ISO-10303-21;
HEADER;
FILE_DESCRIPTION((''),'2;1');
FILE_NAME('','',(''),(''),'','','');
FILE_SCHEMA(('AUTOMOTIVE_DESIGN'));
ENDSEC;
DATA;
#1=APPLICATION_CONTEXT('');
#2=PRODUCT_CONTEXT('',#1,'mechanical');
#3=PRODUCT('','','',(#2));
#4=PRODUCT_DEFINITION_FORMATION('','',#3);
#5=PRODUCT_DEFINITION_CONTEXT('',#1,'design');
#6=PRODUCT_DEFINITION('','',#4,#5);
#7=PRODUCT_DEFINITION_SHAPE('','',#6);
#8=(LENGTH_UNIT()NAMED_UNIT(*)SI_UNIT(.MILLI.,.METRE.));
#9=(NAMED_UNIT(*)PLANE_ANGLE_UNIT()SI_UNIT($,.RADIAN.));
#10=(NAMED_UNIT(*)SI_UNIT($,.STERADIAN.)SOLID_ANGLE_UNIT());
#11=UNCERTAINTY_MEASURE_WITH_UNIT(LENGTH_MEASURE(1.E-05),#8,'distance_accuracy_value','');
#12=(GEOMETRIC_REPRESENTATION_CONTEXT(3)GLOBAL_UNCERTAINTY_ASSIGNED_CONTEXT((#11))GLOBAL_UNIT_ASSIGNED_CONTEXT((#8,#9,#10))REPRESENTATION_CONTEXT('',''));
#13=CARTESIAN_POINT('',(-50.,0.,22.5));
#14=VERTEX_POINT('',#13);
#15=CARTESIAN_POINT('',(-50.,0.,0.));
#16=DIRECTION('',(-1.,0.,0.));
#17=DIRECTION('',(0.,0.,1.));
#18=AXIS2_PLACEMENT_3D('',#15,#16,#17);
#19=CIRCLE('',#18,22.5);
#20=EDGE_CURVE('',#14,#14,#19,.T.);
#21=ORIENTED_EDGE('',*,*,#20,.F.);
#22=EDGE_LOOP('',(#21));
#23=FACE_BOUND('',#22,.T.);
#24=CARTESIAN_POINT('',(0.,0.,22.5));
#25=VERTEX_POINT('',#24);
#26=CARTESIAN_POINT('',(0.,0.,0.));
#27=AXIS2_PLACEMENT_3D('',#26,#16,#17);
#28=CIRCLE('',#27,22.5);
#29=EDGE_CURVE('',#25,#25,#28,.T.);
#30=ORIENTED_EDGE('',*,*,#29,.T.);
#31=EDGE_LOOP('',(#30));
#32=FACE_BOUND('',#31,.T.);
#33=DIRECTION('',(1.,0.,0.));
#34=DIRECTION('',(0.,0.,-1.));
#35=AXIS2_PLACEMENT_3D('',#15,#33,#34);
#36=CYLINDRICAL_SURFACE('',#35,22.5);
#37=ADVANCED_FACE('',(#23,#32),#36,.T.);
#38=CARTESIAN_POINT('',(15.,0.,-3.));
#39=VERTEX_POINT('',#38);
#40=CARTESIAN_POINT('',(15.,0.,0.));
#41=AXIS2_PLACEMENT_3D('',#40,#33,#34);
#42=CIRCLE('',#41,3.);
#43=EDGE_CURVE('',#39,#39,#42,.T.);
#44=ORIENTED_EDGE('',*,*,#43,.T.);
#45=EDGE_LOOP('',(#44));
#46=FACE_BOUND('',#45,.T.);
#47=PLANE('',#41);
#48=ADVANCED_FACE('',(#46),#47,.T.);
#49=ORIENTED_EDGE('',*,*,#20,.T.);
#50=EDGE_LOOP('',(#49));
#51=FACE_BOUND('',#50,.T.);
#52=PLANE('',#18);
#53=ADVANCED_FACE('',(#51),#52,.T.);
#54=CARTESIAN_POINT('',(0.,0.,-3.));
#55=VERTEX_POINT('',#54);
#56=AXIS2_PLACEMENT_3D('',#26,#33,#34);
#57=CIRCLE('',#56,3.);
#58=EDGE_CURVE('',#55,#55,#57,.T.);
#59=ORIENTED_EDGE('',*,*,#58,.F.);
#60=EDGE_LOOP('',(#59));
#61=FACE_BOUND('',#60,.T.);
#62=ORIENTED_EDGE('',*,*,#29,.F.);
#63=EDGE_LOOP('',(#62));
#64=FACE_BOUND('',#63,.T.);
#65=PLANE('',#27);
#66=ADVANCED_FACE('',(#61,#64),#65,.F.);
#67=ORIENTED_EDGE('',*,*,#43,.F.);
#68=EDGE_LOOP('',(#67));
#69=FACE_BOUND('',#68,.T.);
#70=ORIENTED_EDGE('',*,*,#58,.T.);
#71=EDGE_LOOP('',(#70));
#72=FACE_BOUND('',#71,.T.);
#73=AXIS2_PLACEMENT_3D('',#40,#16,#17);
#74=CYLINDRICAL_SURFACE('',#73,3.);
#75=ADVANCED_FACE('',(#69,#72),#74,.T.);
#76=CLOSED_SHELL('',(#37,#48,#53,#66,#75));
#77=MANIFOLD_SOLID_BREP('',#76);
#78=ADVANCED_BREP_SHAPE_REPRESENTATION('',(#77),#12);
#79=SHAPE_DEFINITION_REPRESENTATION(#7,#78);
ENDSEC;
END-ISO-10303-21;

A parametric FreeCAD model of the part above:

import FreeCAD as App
import Part
import Sketcher
from FreeCAD import Vector

doc = App.newDocument("Part")
body = doc.addObject("PartDesign::Body", "Body")

sketch1 = body.newObject("Sketcher::SketchObject", "Sketch")
sketch1.AttachmentSupport = (doc.getObject("YZ_Plane"), [""])
sketch1.MapMode = "FlatFace"
sketch1.addGeometry(Part.Circle(Vector(0, 0, 0), Vector(0, 0, 1), 3), False)
sketch1.addConstraint([
    Sketcher.Constraint("Coincident", 0, 3, -1, 1),
    Sketcher.Constraint("Diameter", 0, 6.0),
])
pad1 = body.newObject("PartDesign::Pad", "Pad")
pad1.Profile = sketch1
pad1.Length = 15

sketch2 = body.newObject("Sketcher::SketchObject", "Sketch001")
sketch2.AttachmentSupport = (doc.getObject("YZ_Plane"), [""])
sketch2.MapMode = "FlatFace"
sketch2.addGeometry(Part.Circle(Vector(0, 0, 0), Vector(0, 0, 1), 22), False)
sketch2.addConstraint([
    Sketcher.Constraint("Coincident", 0, 3, -1, 1),
    Sketcher.Constraint("Diameter", 0, 45.0),
])
pad2 = body.newObject("PartDesign::Pad", "Pad001")
pad2.Profile = sketch2
pad2.Length = 50
pad2.Reversed = True

doc.recompute()
